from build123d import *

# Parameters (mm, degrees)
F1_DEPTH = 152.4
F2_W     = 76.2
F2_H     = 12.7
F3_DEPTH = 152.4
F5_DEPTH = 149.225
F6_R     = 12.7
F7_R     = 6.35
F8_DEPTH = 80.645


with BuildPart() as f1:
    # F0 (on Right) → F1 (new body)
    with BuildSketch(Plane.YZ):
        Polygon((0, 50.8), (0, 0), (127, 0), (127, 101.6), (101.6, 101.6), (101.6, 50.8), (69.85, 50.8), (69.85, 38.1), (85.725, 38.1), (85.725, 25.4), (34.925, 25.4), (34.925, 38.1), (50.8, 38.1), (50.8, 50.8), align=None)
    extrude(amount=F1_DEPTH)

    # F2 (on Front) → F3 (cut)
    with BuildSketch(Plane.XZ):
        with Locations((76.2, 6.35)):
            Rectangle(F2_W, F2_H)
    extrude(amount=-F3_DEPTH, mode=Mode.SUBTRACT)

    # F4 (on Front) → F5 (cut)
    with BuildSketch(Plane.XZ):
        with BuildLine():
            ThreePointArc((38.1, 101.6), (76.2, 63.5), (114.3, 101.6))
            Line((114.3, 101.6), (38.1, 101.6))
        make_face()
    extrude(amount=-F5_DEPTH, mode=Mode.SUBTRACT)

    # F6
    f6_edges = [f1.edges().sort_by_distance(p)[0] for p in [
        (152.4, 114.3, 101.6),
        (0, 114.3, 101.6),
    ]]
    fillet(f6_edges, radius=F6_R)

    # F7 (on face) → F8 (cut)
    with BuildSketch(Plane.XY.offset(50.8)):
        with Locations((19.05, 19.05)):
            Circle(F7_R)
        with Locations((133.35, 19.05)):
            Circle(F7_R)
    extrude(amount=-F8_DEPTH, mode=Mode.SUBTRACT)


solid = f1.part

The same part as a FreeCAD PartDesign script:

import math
import FreeCAD as App
import Part
import Sketcher
Q = App.Units.Quantity


def edges_at(feature, points):
    """Names of the edges that pass closest to the given points."""
    edges = feature.Shape.Edges
    near = lambda p: min(range(len(edges)), key=lambda i: edges[i].distToShape(Part.Vertex(*p))[0])
    return sorted({f"Edge{near(p) + 1}" for p in points})


def add_polygon(sketch, points):
    """Adds a closed chain of lines whose ends are joined by coincident constraints."""
    first, n = sketch.GeometryCount, len(points)
    for a, b in zip(points, points[1:] + points[:1]):
        sketch.addGeometry(Part.LineSegment(App.Vector(*a, 0), App.Vector(*b, 0)), False)
    for i in range(n):
        sketch.addConstraint(Sketcher.Constraint("Coincident", first + i, 2, first + (i + 1) % n, 1))

doc = App.newDocument("Part")
params = doc.addObject("Spreadsheet::Sheet", "Params")
for row, (alias, value) in enumerate([
    ("sketch1_width", "5 in"),
    ("sketch1_width2", "1 in"),
    ("sketch1_width3", "2 in"),
    ("sketch1_height", "0.5 in"),
    ("sketch1_width4", "1.25 in"),
    ("pad1_length", "6 in"),
    ("sketch2_width", "3 in"),
    ("sketch2_height", "0.5 in"),
    ("pocket1_length", "6 in"),
    ("sketch3_radius", "1.5 in"),
    ("pocket2_length", "5.875 in"),
    ("fillet_radius", "0.5 in"),
    ("sketch4_diameter", "0.5 in"),
    ("pocket3_length", "3.175 in"),
], start=1):
    params.set(f"A{row}", alias)
    params.set(f"B{row}", "=" + value)
    params.setAlias(f"B{row}", alias)

body = doc.addObject("PartDesign::Body", "Body")

# Sketch on YZ plane
sketch1 = doc.addObject("Sketcher::SketchObject", "Sketch")
body.addObject(sketch1)
sketch1.AttachmentSupport = (doc.YZ_Plane, [""])
sketch1.MapMode = "FlatFace"
add_polygon(sketch1, [(0, 50.8), (0, 0), (127, 0), (127, 101.6), (101.6, 101.6), (101.6, 50.8), (69.85, 50.8), (69.85, 38.1), (85.725, 38.1), (85.725, 25.4), (34.925, 25.4), (34.925, 38.1), (50.8, 38.1), (50.8, 50.8)])  # lines 0-13
sketch1.addConstraint(Sketcher.Constraint("Vertical", 0))
sketch1.addConstraint(Sketcher.Constraint("Horizontal", 1))
sketch1.addConstraint(Sketcher.Constraint("Vertical", 2))
sketch1.addConstraint(Sketcher.Constraint("Horizontal", 3))
sketch1.addConstraint(Sketcher.Constraint("Vertical", 4))
sketch1.addConstraint(Sketcher.Constraint("Horizontal", 5))
sketch1.addConstraint(Sketcher.Constraint("Vertical", 6))
sketch1.addConstraint(Sketcher.Constraint("Horizontal", 7))
sketch1.addConstraint(Sketcher.Constraint("Vertical", 8))
sketch1.addConstraint(Sketcher.Constraint("Horizontal", 9))
sketch1.addConstraint(Sketcher.Constraint("Vertical", 10))
sketch1.addConstraint(Sketcher.Constraint("Horizontal", 11))
sketch1.addConstraint(Sketcher.Constraint("Vertical", 12))
sketch1.addConstraint(Sketcher.Constraint("Horizontal", 13))
sketch1.addConstraint(Sketcher.Constraint("Coincident", 0, 2, -1, 1))
sketch1.addConstraint(Sketcher.Constraint("Horizontal", 7, 2, 10, 2))
sketch1.addConstraint(Sketcher.Constraint("Horizontal", 5, 2, 12, 2))
sketch1.addConstraint(Sketcher.Constraint("Equal", 7, 11))
sketch1.addConstraint(Sketcher.Constraint("Equal", 9, 13))
sketch1.addConstraint(Sketcher.Constraint("Equal", 13, 0))
sketch1.addConstraint(Sketcher.Constraint("Equal", 0, 4))
sketch1.addConstraint(Sketcher.Constraint("Equal", 6, 8))
sketch1.addConstraint(Sketcher.Constraint("DistanceX", 1, 1, 1, 2, Q("5 in")))
sketch1.addConstraint(Sketcher.Constraint("DistanceX", 3, 2, 3, 1, Q("1 in")))
sketch1.addConstraint(Sketcher.Constraint("DistanceX", 9, 2, 9, 1, Q("2 in")))
sketch1.addConstraint(Sketcher.Constraint("DistanceY", 6, 2, 6, 1, Q("0.5 in")))
sketch1.addConstraint(Sketcher.Constraint("DistanceX", 5, 2, 5, 1, Q("1.25 in")))
sketch1.setExpression("Constraints[36]", "Params.sketch1_width")
sketch1.setExpression("Constraints[37]", "Params.sketch1_width2")
sketch1.setExpression("Constraints[38]", "Params.sketch1_width3")
sketch1.setExpression("Constraints[39]", "Params.sketch1_height")
sketch1.setExpression("Constraints[40]", "Params.sketch1_width4")
pad1 = doc.addObject("PartDesign::Pad", "Pad")
body.addObject(pad1)
pad1.Profile = sketch1
pad1.setExpression("Length", "Params.pad1_length")

# Sketch on XZ plane
sketch2 = doc.addObject("Sketcher::SketchObject", "Sketch001")
body.addObject(sketch2)
sketch2.AttachmentSupport = (doc.XZ_Plane, [""])
sketch2.MapMode = "FlatFace"
add_polygon(sketch2, [(38.1, 12.7), (38.1, 0), (114.3, 0), (114.3, 12.7)])  # lines 0-3
sketch2.addConstraint(Sketcher.Constraint("Vertical", 0))
sketch2.addConstraint(Sketcher.Constraint("Horizontal", 1))
sketch2.addConstraint(Sketcher.Constraint("Vertical", 2))
sketch2.addConstraint(Sketcher.Constraint("Horizontal", 3))
sketch2.addConstraint(Sketcher.Constraint("PointOnObject", 0, 2, -1))
sketch2.addConstraint(Sketcher.Constraint("DistanceX", 1, 1, 1, 2, Q("3 in")))
sketch2.addConstraint(Sketcher.Constraint("DistanceY", 0, 2, 0, 1, Q("0.5 in")))
sketch2.addConstraint(Sketcher.Constraint("DistanceX", -1, 1, 0, 2, Q("1.5 in")))
sketch2.setExpression("Constraints[9]", "Params.sketch2_width")
sketch2.setExpression("Constraints[10]", "Params.sketch2_height")
pocket1 = doc.addObject("PartDesign::Pocket", "Pocket")
body.addObject(pocket1)
pocket1.Profile = sketch2
pocket1.setExpression("Length", "Params.pocket1_length")

# Sketch on XZ plane
sketch3 = doc.addObject("Sketcher::SketchObject", "Sketch002")
body.addObject(sketch3)
sketch3.AttachmentSupport = (doc.XZ_Plane, [""])
sketch3.MapMode = "FlatFace"
sketch3.addGeometry(Part.ArcOfCircle(Part.Circle(App.Vector(76.2, 101.6, 0), App.Vector(0, 0, 1), 38.1), math.radians(180), math.radians(360)), False)
sketch3.addGeometry(Part.LineSegment(App.Vector(114.3, 101.6, 0), App.Vector(38.1, 101.6, 0)), False)
sketch3.addConstraint(Sketcher.Constraint("Coincident", 0, 1, 1, 2))
sketch3.addConstraint(Sketcher.Constraint("Coincident", 1, 1, 0, 2))
sketch3.addConstraint(Sketcher.Constraint("Horizontal", 1))
sketch3.addConstraint(Sketcher.Constraint("Radius", 0, Q("1.5 in")))
sketch3.addConstraint(Sketcher.Constraint("DistanceX", -1, 1, 0, 3, Q("3 in")))
sketch3.addConstraint(Sketcher.Constraint("DistanceY", -1, 1, 0, 3, Q("4 in")))
sketch3.addConstraint(Sketcher.Constraint("DistanceY", -1, 1, 0, 1, Q("4 in")))
sketch3.setExpression("Constraints[3]", "Params.sketch3_radius")
pocket2 = doc.addObject("PartDesign::Pocket", "Pocket001")
body.addObject(pocket2)
pocket2.Profile = sketch3
pocket2.setExpression("Length", "Params.pocket2_length")
doc.recompute()

fillet = doc.addObject("PartDesign::Fillet", "Fillet")
body.addObject(fillet)
fillet.Base = (pocket2, edges_at(pocket2, [(152.4, 114.3, 101.6), (0, 114.3, 101.6)]))
fillet.setExpression("Radius", "Params.fillet_radius")

# Sketch on XY plane
sketch4 = doc.addObject("Sketcher::SketchObject", "Sketch003")
body.addObject(sketch4)
sketch4.AttachmentSupport = (doc.XY_Plane, [""])
sketch4.MapMode = "FlatFace"
sketch4.AttachmentOffset = App.Placement(App.Vector(0, 0, 2 * 25.4), App.Rotation())
sketch4.addGeometry(Part.Circle(App.Vector(19.05, 19.05, 0), App.Vector(0, 0, 1), 6.35), False)
sketch4.addGeometry(Part.Circle(App.Vector(133.35, 19.05, 0), App.Vector(0, 0, 1), 6.35), False)
sketch4.addConstraint(Sketcher.Constraint("Equal", 0, 1))
sketch4.addConstraint(Sketcher.Constraint("Horizontal", 0, 3, 1, 3))
sketch4.addConstraint(Sketcher.Constraint("Diameter", 0, Q("0.5 in")))
sketch4.addConstraint(Sketcher.Constraint("DistanceX", 0, 3, 1, 3, Q("4.5 in")))
sketch4.addConstraint(Sketcher.Constraint("DistanceX", -1, 1, 0, 3, Q("0.75 in")))
sketch4.addConstraint(Sketcher.Constraint("DistanceY", -1, 1, 0, 3, Q("0.75 in")))
sketch4.setExpression("Constraints[2]", "Params.sketch4_diameter")
pocket3 = doc.addObject("PartDesign::Pocket", "Pocket002")
body.addObject(pocket3)
pocket3.Profile = sketch4
pocket3.setExpression("Length", "Params.pocket3_length")

doc.recompute()
